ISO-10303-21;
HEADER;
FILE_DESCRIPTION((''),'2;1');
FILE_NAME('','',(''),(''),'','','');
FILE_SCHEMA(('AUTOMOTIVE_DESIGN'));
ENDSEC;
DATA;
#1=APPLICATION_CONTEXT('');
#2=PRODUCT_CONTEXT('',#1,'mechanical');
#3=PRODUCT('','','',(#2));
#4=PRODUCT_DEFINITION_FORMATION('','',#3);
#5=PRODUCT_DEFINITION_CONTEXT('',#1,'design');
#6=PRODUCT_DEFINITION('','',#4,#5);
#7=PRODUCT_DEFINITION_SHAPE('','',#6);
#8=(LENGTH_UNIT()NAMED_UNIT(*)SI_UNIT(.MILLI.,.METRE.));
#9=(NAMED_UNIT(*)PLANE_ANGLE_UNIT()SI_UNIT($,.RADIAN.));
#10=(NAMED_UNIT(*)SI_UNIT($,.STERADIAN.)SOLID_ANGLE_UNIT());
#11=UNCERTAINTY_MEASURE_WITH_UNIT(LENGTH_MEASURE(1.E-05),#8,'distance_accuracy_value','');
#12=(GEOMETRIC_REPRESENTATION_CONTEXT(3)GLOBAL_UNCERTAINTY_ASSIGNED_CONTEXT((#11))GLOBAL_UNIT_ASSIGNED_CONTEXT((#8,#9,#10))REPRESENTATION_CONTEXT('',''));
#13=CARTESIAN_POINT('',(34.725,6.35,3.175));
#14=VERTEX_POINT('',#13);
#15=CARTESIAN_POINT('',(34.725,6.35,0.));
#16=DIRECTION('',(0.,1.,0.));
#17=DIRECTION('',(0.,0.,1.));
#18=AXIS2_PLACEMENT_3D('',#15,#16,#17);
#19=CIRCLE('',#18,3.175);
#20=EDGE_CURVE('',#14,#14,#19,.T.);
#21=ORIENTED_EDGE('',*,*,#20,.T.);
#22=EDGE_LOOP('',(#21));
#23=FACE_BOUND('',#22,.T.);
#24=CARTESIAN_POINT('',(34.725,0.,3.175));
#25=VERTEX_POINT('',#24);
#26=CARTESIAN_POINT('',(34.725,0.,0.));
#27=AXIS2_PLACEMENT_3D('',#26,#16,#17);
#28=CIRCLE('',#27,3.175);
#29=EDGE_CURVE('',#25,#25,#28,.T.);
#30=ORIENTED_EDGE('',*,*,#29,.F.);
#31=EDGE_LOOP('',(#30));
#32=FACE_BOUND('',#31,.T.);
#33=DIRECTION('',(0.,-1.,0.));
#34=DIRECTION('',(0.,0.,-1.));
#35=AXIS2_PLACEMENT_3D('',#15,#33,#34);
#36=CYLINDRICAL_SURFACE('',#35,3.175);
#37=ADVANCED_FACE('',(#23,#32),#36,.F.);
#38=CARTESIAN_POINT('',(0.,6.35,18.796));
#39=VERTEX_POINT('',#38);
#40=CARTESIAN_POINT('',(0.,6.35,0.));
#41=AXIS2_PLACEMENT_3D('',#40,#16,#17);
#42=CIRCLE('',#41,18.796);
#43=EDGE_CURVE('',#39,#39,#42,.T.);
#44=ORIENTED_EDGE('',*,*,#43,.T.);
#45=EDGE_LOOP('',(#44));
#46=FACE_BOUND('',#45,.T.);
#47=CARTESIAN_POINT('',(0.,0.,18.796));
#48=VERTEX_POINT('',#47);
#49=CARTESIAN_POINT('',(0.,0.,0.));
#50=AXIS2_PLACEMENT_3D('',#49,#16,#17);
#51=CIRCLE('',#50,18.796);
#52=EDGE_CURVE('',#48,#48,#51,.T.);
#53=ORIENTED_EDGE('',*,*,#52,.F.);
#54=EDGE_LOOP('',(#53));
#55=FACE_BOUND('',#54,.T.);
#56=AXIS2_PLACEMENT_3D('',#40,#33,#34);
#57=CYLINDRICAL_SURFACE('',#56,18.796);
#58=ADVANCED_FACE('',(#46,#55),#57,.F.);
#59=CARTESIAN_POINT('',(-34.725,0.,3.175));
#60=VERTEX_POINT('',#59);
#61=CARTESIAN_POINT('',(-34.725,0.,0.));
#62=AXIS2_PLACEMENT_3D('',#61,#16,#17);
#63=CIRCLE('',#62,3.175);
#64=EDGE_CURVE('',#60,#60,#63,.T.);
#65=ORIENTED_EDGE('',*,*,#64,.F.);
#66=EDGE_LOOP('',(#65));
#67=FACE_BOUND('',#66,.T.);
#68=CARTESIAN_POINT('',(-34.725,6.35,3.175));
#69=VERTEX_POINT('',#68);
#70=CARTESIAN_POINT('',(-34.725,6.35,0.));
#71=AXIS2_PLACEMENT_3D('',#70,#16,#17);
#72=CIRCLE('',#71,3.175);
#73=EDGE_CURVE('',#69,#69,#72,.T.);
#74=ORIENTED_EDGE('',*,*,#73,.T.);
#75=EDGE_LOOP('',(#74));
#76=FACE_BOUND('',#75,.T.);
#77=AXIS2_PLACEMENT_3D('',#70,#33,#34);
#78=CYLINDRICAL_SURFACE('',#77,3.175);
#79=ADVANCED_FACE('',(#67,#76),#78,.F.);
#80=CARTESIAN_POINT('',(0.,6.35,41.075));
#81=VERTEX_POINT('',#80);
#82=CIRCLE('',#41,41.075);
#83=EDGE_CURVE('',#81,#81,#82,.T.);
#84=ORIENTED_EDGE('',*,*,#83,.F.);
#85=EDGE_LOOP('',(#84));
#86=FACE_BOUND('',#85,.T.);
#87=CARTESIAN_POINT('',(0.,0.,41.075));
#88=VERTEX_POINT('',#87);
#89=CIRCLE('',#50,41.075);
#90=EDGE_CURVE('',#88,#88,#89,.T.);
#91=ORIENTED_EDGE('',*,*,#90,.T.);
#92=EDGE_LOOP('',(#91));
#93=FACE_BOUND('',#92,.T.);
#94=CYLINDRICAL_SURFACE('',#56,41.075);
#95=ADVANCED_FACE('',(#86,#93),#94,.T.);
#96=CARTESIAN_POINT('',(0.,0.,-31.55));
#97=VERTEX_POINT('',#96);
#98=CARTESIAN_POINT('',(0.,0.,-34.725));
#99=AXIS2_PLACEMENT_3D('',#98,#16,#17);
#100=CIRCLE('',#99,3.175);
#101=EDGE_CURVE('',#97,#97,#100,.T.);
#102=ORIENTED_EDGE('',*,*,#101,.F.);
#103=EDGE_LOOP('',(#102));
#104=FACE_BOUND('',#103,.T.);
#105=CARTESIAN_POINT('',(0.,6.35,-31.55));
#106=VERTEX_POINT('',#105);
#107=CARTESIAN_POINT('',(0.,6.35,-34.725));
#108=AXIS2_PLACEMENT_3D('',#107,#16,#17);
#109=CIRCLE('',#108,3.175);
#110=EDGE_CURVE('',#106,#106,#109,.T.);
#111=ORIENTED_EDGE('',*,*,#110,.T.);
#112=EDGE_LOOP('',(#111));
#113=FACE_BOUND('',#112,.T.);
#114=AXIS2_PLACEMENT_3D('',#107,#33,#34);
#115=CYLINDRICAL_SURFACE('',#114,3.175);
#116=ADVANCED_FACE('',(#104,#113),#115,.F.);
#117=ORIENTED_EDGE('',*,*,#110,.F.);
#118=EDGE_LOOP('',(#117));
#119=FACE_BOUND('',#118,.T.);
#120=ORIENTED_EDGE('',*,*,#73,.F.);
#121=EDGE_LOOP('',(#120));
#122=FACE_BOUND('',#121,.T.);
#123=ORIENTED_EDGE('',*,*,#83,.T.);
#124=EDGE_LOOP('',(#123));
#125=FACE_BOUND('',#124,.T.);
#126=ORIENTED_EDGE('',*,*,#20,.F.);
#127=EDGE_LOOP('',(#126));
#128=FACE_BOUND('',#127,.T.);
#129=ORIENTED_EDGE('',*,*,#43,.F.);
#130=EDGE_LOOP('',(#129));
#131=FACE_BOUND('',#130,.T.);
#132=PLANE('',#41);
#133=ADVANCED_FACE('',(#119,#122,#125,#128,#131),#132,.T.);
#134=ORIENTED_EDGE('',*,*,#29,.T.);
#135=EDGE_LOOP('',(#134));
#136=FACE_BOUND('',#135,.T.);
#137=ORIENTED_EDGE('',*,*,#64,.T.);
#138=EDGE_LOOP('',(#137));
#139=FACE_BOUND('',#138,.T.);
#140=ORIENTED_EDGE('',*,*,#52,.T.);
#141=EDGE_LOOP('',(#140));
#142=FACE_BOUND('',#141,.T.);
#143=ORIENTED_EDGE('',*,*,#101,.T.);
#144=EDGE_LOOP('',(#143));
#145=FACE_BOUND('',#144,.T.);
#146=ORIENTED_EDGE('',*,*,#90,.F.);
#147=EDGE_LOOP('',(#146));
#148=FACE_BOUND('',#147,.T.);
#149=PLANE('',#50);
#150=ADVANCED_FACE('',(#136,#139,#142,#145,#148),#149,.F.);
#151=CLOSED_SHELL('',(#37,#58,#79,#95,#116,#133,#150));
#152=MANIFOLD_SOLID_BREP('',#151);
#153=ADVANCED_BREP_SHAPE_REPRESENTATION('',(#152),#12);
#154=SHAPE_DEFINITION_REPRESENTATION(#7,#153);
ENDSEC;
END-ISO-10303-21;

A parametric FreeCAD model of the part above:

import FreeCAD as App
import Part
import Sketcher
from FreeCAD import Vector
Q = App.Units.Quantity

doc = App.newDocument("Part")
params = doc.addObject("Spreadsheet::Sheet", "Params")
for row, (alias, value) in enumerate([
    ("sketch1_diameter", "0.25 in"),
    ("sketch1_diameter2", "1.48 in"),
    ("pad1_length", "0.25 in"),
], start=1):
    params.set(f"A{row}", alias)
    params.set(f"B{row}", "=" + value)
    params.setAlias(f"B{row}", alias)

body = doc.addObject("PartDesign::Body", "Body")

sketch1 = doc.addObject("Sketcher::SketchObject", "Sketch")
body.addObject(sketch1)
sketch1.AttachmentSupport = (doc.XZ_Plane, [""])
sketch1.MapMode = "FlatFace"
sketch1.addGeometry([
    Part.Circle(Vector(0, 0, 0), Vector(0, 0, 1), 41.1),
    Part.Circle(Vector(-34.7, 0, 0), Vector(0, 0, 1), 3.2),
    Part.Circle(Vector(0, 0, 0), Vector(0, 0, 1), 18.8),
    Part.Circle(Vector(34.7, 0, 0), Vector(0, 0, 1), 3.2),
    Part.Circle(Vector(0, -34.7, 0), Vector(0, 0, 1), 3.2),
], False)
sketch1.addConstraint([
    Sketcher.Constraint("Coincident", 0, 3, -1, 1),
    Sketcher.Constraint("Coincident", 2, 3, -1, 1),
    Sketcher.Constraint("Equal", 1, 3),
    Sketcher.Constraint("Equal", 3, 4),
    Sketcher.Constraint("Symmetric", 1, 3, 3, 3, -1, 1),
    Sketcher.Constraint("PointOnObject", 1, 3, -1),
    Sketcher.Constraint("PointOnObject", 4, 3, -2),
    Sketcher.Constraint("Diameter", 1, Q("0.25 in")),
    Sketcher.Constraint("Diameter", 2, Q("1.48 in")),
    Sketcher.Constraint("Diameter", 0, 82.15),
    Sketcher.Constraint("DistanceX", 1, 3, -1, 1, 34.725),
    Sketcher.Constraint("DistanceY", 4, 3, -1, 1, 34.725),
])
sketch1.setExpression("Constraints[7]", "Params.sketch1_diameter")
sketch1.setExpression("Constraints[8]", "Params.sketch1_diameter2")
pad1 = doc.addObject("PartDesign::Pad", "Pad")
body.addObject(pad1)
pad1.Profile = sketch1
pad1.setExpression("Length", "Params.pad1_length")
pad1.Reversed = True

doc.recompute()
